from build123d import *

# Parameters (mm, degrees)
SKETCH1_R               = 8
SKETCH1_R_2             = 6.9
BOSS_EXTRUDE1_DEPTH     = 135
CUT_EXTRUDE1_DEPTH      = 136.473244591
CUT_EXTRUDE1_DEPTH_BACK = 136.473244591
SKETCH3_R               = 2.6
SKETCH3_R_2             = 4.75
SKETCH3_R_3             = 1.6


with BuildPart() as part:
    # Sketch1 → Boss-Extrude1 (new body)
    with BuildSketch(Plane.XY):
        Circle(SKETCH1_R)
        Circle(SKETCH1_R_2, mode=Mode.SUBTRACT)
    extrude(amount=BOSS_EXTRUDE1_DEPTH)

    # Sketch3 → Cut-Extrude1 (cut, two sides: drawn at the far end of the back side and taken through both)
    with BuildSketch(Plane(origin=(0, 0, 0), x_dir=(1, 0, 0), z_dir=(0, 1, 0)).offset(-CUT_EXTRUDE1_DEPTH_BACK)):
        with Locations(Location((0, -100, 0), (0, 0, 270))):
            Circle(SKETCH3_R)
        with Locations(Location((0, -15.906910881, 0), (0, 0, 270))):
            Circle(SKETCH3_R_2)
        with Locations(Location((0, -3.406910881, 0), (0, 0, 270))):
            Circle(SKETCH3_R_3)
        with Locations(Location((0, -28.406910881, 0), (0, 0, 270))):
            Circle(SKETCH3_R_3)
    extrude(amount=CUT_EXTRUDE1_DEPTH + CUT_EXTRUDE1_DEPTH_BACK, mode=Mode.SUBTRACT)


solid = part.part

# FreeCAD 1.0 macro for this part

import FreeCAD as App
import Part
import Sketcher
from FreeCAD import Vector
Q = App.Units.Quantity

doc = App.newDocument("Part")
body = doc.addObject("PartDesign::Body", "Body")

sketch1 = doc.addObject("Sketcher::SketchObject", "Sketch")
body.addObject(sketch1)
sketch1.AttachmentSupport = (doc.XY_Plane, [""])
sketch1.MapMode = "FlatFace"
sketch1.addGeometry(Part.Circle(Vector(0, 0, 0), Vector(0, 0, 1), 8), False)
sketch1.addGeometry(Part.Circle(Vector(0, 0, 0), Vector(0, 0, 1), 7), False)
sketch1.addConstraint(Sketcher.Constraint("Coincident", 0, 3, -1, 1))
sketch1.addConstraint(Sketcher.Constraint("Coincident", 1, 3, -1, 1))
sketch1.addConstraint(Sketcher.Constraint("Diameter", 0, Q("16 mm")))
sketch1.addConstraint(Sketcher.Constraint("Diameter", 1, Q("13.8 mm")))
pad1 = doc.addObject("PartDesign::Pad", "Pad")
body.addObject(pad1)
pad1.Profile = sketch1
pad1.Length = 135

sketch2 = doc.addObject("Sketcher::SketchObject", "Sketch001")
body.addObject(sketch2)
sketch2.AttachmentSupport = (doc.XZ_Plane, [""])
sketch2.MapMode = "FlatFace"
sketch2.addGeometry(Part.Circle(Vector(0, 100, 0), Vector(0, 0, 1), 2.6), False)
sketch2.addGeometry(Part.Circle(Vector(0, 15.9, 0), Vector(0, 0, 1), 4.8), False)
sketch2.addGeometry(Part.Circle(Vector(0, 3.4, 0), Vector(0, 0, 1), 1.6), False)
sketch2.addGeometry(Part.Circle(Vector(0, 28.4, 0), Vector(0, 0, 1), 1.6), False)
sketch2.addConstraint(Sketcher.Constraint("Equal", 2, 3))
sketch2.addConstraint(Sketcher.Constraint("PointOnObject", 0, 3, -2))
sketch2.addConstraint(Sketcher.Constraint("PointOnObject", 1, 3, -2))
sketch2.addConstraint(Sketcher.Constraint("PointOnObject", 2, 3, -2))
sketch2.addConstraint(Sketcher.Constraint("PointOnObject", 3, 3, -2))
sketch2.addConstraint(Sketcher.Constraint("Diameter", 0, Q("5.2 mm")))
sketch2.addConstraint(Sketcher.Constraint("Diameter", 1, Q("9.5 mm")))
sketch2.addConstraint(Sketcher.Constraint("Diameter", 2, Q("3.2 mm")))
sketch2.addConstraint(Sketcher.Constraint("DistanceY", -1, 1, 0, 3, Q("100 mm")))
sketch2.addConstraint(Sketcher.Constraint("DistanceY", 2, 3, 3, 3, Q("25 mm")))
sketch2.addConstraint(Sketcher.Constraint("DistanceY", 2, 3, 1, 3, Q("12.5 mm")))
sketch2.addConstraint(Sketcher.Constraint("DistanceY", -1, 1, 1, 3, Q("15.906911 mm")))
pocket1 = doc.addObject("PartDesign::Pocket", "Pocket")
body.addObject(pocket1)
pocket1.Profile = sketch2
pocket1.Type = "ThroughAll"
pocket1.Midplane = True

doc.recompute()
